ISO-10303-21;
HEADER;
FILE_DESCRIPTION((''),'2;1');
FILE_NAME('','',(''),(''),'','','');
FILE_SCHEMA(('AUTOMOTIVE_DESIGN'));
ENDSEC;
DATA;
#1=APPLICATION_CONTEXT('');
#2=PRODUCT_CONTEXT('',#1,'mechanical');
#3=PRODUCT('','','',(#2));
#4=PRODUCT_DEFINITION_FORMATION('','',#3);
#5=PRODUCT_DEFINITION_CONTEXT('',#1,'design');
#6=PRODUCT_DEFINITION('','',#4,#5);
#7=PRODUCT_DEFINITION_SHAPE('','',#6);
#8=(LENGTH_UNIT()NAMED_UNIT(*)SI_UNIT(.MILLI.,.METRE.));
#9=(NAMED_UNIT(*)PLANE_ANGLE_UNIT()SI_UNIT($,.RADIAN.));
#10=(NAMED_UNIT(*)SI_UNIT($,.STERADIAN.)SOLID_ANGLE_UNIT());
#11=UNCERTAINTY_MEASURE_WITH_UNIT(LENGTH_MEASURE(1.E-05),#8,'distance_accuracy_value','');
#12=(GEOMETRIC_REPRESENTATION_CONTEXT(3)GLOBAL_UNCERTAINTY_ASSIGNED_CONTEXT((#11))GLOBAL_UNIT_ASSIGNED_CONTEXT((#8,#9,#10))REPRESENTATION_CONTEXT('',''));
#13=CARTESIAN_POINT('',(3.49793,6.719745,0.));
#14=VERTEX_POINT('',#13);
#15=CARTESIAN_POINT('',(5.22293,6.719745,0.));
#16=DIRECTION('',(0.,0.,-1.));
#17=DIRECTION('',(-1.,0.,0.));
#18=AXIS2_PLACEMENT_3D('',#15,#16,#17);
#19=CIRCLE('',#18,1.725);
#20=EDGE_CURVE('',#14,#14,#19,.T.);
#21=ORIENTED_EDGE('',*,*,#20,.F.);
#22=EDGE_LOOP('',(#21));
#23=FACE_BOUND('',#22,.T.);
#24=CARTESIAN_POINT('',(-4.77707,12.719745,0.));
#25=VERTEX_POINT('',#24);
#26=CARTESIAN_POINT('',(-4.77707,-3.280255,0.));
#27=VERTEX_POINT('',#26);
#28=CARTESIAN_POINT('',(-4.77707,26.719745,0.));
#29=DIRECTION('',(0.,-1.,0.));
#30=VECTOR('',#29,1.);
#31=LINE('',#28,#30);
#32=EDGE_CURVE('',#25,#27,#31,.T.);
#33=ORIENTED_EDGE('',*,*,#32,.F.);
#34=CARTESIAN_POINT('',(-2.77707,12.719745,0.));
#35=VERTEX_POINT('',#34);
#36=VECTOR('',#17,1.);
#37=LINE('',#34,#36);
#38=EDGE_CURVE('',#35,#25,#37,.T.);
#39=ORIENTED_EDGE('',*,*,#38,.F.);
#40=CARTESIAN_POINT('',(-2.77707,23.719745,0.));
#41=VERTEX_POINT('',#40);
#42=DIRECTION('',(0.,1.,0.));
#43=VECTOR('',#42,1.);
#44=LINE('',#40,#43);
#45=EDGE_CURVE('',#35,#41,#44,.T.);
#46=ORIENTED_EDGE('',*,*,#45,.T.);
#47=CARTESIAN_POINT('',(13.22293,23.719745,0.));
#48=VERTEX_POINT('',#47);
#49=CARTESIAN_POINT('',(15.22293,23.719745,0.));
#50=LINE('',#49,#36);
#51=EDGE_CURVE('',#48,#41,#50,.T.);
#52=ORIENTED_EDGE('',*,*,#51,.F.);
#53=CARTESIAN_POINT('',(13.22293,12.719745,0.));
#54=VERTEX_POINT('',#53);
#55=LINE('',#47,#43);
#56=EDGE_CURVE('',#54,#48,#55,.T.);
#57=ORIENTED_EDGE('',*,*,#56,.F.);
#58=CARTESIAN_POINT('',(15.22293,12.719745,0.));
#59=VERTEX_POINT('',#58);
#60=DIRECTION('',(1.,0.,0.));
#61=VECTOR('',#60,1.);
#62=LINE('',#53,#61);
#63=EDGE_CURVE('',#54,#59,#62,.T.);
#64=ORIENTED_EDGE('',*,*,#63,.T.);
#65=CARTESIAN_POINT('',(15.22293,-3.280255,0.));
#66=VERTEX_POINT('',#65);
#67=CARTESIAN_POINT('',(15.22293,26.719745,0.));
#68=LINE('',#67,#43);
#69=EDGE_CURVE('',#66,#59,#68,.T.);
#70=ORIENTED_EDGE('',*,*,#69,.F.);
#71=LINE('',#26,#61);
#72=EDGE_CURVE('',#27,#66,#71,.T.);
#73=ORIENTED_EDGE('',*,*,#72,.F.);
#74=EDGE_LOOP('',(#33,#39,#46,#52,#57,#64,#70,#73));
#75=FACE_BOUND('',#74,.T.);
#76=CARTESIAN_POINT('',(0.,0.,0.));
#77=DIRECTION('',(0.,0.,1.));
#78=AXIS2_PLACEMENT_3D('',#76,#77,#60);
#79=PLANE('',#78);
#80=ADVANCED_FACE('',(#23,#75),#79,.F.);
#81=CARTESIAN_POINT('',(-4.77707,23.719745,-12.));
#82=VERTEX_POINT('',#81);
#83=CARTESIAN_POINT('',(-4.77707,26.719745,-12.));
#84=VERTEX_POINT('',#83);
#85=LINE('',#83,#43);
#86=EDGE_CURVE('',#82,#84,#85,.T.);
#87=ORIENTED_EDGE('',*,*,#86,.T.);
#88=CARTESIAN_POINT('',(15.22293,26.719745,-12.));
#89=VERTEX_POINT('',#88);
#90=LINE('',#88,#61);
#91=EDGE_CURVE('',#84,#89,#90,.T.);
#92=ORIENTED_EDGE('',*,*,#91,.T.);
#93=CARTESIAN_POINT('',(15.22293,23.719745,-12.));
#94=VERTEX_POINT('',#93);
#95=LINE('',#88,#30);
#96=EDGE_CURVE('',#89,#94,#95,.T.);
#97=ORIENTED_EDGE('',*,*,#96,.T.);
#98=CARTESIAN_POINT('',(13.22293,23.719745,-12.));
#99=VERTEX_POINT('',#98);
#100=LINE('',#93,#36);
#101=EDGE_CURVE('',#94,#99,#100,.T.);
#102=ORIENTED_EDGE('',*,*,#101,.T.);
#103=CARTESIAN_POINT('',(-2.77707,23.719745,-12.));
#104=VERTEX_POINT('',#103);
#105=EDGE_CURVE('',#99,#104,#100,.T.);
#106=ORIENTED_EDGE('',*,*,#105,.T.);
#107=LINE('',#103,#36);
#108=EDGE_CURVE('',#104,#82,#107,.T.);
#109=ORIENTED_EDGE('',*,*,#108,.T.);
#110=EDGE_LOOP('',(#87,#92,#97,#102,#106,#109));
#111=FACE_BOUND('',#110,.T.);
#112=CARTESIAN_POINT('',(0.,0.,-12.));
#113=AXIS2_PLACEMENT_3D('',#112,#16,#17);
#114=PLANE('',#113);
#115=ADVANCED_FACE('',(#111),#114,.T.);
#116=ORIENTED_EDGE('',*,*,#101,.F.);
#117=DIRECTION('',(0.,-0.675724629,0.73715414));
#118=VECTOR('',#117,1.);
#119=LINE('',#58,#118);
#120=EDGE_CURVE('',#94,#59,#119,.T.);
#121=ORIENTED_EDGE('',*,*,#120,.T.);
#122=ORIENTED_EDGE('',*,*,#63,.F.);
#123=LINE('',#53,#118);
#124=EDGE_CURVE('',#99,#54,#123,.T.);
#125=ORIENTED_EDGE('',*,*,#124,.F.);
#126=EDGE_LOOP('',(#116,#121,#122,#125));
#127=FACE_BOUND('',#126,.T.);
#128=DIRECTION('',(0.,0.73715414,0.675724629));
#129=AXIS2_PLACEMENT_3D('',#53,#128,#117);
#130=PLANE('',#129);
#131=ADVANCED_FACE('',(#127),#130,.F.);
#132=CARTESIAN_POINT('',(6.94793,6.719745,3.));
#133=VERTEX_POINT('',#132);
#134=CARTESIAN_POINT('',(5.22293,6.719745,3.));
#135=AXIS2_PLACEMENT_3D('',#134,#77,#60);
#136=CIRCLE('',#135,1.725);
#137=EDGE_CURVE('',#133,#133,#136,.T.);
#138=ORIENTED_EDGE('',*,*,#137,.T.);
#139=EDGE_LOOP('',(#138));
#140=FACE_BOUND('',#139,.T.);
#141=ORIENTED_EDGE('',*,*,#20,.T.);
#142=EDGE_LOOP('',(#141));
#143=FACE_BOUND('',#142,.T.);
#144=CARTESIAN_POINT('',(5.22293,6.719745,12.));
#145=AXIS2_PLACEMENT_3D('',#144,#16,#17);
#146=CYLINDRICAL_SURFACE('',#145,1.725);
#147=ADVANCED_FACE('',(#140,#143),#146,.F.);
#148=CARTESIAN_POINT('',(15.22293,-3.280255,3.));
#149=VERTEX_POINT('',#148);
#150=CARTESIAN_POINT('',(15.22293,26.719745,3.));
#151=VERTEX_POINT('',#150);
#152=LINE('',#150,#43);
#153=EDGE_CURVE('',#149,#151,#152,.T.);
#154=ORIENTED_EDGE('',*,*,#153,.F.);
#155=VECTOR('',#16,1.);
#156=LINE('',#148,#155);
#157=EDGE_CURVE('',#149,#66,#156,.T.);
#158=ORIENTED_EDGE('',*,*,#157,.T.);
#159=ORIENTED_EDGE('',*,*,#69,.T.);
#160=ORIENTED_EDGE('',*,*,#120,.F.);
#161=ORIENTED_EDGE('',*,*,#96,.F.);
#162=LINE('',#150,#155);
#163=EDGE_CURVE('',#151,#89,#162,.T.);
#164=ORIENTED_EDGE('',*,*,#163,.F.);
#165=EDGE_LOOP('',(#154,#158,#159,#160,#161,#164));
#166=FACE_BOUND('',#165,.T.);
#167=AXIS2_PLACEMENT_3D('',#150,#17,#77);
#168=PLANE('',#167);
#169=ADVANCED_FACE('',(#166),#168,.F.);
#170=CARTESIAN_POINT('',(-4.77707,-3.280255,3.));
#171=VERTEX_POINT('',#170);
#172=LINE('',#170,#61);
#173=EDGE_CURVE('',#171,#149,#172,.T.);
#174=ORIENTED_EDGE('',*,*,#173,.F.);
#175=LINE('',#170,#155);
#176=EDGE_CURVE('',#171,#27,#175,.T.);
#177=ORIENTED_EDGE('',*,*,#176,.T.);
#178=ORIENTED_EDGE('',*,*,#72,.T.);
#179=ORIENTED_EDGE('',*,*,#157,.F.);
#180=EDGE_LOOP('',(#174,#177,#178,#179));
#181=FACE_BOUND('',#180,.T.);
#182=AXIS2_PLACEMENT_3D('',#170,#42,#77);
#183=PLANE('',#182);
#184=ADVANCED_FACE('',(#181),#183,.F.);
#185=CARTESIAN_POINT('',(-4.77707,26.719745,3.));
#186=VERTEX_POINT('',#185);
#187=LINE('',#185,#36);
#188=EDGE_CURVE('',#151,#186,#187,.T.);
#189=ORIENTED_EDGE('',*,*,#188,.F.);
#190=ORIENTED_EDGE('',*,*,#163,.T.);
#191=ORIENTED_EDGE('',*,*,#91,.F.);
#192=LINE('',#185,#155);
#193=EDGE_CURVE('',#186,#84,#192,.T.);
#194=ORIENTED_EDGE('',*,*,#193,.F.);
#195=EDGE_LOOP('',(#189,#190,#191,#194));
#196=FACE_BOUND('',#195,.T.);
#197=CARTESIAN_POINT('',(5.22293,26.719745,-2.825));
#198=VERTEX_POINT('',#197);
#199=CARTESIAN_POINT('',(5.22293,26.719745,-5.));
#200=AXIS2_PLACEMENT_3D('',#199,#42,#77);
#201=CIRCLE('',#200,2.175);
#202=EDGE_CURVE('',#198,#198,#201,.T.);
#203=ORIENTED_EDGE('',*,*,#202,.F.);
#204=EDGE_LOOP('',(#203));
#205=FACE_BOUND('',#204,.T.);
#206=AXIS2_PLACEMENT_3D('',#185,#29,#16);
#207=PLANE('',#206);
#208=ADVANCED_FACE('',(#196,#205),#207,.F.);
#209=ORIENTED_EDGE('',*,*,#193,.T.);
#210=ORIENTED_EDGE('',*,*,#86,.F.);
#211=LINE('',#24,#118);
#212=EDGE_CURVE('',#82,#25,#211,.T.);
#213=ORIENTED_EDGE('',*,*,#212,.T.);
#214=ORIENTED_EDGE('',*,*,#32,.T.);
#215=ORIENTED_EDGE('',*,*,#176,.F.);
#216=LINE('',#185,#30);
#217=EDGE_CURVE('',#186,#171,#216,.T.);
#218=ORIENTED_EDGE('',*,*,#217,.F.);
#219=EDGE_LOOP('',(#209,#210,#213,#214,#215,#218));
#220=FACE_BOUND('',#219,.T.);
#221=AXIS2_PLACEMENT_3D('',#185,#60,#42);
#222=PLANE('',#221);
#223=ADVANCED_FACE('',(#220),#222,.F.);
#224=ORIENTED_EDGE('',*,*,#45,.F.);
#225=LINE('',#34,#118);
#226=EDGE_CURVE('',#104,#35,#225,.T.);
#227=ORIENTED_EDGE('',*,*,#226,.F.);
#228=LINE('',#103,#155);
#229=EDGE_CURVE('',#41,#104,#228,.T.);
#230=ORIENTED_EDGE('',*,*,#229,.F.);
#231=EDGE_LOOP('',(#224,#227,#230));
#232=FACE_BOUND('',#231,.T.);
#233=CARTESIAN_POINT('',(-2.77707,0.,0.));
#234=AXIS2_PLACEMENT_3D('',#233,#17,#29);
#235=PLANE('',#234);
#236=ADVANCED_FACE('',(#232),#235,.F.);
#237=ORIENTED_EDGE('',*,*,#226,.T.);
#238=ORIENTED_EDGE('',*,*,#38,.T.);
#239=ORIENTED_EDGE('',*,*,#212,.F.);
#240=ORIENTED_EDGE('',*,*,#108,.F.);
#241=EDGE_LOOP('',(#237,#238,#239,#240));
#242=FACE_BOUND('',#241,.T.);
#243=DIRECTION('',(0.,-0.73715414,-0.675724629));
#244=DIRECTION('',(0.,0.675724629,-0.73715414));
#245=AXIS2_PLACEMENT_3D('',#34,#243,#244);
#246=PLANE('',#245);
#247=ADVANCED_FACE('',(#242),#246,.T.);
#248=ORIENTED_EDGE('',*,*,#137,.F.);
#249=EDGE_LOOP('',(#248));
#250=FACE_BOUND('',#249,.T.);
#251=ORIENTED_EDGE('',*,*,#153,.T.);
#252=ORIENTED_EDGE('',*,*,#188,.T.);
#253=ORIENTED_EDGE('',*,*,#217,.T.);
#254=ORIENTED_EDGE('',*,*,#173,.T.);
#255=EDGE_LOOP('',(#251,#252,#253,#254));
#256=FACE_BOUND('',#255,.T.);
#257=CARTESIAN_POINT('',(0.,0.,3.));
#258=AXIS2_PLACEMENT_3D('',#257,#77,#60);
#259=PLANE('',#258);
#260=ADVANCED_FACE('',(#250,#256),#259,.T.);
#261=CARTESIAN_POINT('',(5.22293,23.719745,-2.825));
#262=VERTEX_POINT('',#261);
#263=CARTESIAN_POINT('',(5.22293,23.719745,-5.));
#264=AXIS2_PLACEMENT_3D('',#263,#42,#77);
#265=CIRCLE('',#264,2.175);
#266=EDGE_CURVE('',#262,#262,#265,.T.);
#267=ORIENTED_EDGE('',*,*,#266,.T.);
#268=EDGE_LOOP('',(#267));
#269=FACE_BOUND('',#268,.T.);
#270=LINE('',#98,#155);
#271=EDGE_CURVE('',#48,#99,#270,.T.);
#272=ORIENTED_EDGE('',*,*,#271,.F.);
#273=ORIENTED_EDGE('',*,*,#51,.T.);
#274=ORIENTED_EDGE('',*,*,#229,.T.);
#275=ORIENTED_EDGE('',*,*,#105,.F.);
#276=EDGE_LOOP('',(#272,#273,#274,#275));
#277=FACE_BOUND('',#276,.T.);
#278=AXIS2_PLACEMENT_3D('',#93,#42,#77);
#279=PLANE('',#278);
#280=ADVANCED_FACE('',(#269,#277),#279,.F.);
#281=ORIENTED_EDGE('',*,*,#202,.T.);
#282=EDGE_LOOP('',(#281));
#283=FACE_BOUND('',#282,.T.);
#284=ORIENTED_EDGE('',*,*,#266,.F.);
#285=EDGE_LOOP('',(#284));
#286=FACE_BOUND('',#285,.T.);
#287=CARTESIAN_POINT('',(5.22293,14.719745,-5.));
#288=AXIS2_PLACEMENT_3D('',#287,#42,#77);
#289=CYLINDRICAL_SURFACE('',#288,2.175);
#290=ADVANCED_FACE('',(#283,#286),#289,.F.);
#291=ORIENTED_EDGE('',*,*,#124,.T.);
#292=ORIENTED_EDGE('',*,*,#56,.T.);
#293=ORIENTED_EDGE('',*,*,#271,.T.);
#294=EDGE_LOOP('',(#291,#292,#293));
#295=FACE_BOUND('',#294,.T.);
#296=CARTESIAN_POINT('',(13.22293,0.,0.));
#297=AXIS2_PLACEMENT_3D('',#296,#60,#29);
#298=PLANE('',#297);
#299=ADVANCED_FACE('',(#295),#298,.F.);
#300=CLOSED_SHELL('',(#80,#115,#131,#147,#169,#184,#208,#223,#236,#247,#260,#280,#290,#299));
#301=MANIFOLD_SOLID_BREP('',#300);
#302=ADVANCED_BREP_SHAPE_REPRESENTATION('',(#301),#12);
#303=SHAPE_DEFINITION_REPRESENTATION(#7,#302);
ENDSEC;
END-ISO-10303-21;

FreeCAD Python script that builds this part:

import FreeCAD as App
import Part
import Sketcher


def add_polygon(sketch, points):
    """Adds a closed chain of lines whose ends are joined by coincident constraints."""
    first, n = sketch.GeometryCount, len(points)
    for a, b in zip(points, points[1:] + points[:1]):
        sketch.addGeometry(Part.LineSegment(App.Vector(*a, 0), App.Vector(*b, 0)), False)
    for i in range(n):
        sketch.addConstraint(Sketcher.Constraint("Coincident", first + i, 2, first + (i + 1) % n, 1))

doc = App.newDocument("Part")
body = doc.addObject("PartDesign::Body", "Body")

sketch1 = body.newObject("Sketcher::SketchObject", "Sketch")
sketch1.AttachmentSupport = (doc.getObject("XY_Plane"), [""])
sketch1.MapMode = "FlatFace"
add_polygon(sketch1, [(-4.77707, 26.719745), (-4.77707, -3.280255), (15.22293, -3.280255), (15.22293, 26.719745)])
sketch1.addConstraint(Sketcher.Constraint("Vertical", 0))
sketch1.addConstraint(Sketcher.Constraint("Horizontal", 1))
sketch1.addConstraint(Sketcher.Constraint("Vertical", 2))
sketch1.addConstraint(Sketcher.Constraint("Horizontal", 3))
sketch1.addConstraint(Sketcher.Constraint("DistanceX", 1, 1, 1, 2, 20.0))
sketch1.addConstraint(Sketcher.Constraint("DistanceY", 0, 2, 0, 1, 30.0))
sketch1.addConstraint(Sketcher.Constraint("DistanceX", 0, 2, -1, 1, 4.77707))
sketch1.addConstraint(Sketcher.Constraint("DistanceY", 0, 2, -1, 1, 3.280255))
pad1 = body.newObject("PartDesign::Pad", "Pad")
pad1.Profile = sketch1
pad1.Length = 3

sketch2 = body.newObject("Sketcher::SketchObject", "Sketch001")
sketch2.AttachmentSupport = (doc.getObject("XY_Plane"), [""])
sketch2.MapMode = "FlatFace"
add_polygon(sketch2, [(15.22293, 26.719745), (15.22293, 23.719745), (-4.77707, 23.719745), (-4.77707, 26.719745)])
sketch2.addConstraint(Sketcher.Constraint("Vertical", 0))
sketch2.addConstraint(Sketcher.Constraint("Horizontal", 1))
sketch2.addConstraint(Sketcher.Constraint("Vertical", 2))
sketch2.addConstraint(Sketcher.Constraint("Horizontal", 3))
sketch2.addConstraint(Sketcher.Constraint("DistanceX", 1, 2, 1, 1, 20.0))
sketch2.addConstraint(Sketcher.Constraint("DistanceY", 0, 2, 0, 1, 3.0))
sketch2.addConstraint(Sketcher.Constraint("DistanceX", -1, 1, 0, 2, 15.22293))
sketch2.addConstraint(Sketcher.Constraint("DistanceY", -1, 1, 0, 2, 23.719745))
pad2 = body.newObject("PartDesign::Pad", "Pad001")
pad2.Profile = sketch2
pad2.Length = 12
pad2.Reversed = True

sketch3 = body.newObject("Sketcher::SketchObject", "Sketch002")
sketch3.AttachmentSupport = (doc.getObject("XZ_Plane"), [""])
sketch3.MapMode = "FlatFace"
sketch3.AttachmentOffset = App.Placement(App.Vector(0, 0, -26.719745), App.Rotation())
sketch3.addGeometry(Part.Circle(App.Vector(5.22293, -5, 0), App.Vector(0, 0, 1), 2.175), False)
sketch3.addConstraint(Sketcher.Constraint("Diameter", 0, 4.35))
sketch3.addConstraint(Sketcher.Constraint("DistanceY", 0, 3, -1, 1, 5.0))
sketch3.addConstraint(Sketcher.Constraint("DistanceX", -1, 1, 0, 3, 5.22293))
pocket1 = body.newObject("PartDesign::Pocket", "Pocket")
pocket1.Profile = sketch3
pocket1.Length = 12
pocket1.Reversed = True

sketch4 = body.newObject("Sketcher::SketchObject", "Sketch003")
sketch4.AttachmentSupport = (doc.getObject("XY_Plane"), [""])
sketch4.MapMode = "FlatFace"
sketch4.addGeometry(Part.Circle(App.Vector(5.22293, 6.719745, 0), App.Vector(0, 0, 1), 1.725), False)
sketch4.addConstraint(Sketcher.Constraint("Diameter", 0, 3.45))
sketch4.addConstraint(Sketcher.Constraint("DistanceX", -1, 1, 0, 3, 5.22293))
sketch4.addConstraint(Sketcher.Constraint("DistanceY", -1, 1, 0, 3, 6.719745))
pocket2 = body.newObject("PartDesign::Pocket", "Pocket001")
pocket2.Profile = sketch4
pocket2.Length = 12
pocket2.Reversed = True

sketch5 = body.newObject("Sketcher::SketchObject", "Sketch004")
sketch5.AttachmentSupport = (doc.getObject("YZ_Plane"), [""])
sketch5.MapMode = "FlatFace"
sketch5.AttachmentOffset = App.Placement(App.Vector(0, 0, -4.77707), App.Rotation())
add_polygon(sketch5, [(23.719745, 0), (23.719745, -12), (12.719745, 0)])
sketch5.addConstraint(Sketcher.Constraint("Vertical", 0))
sketch5.addConstraint(Sketcher.Constraint("Horizontal", 2))
sketch5.addConstraint(Sketcher.Constraint("PointOnObject", 1, 2, -1))
sketch5.addConstraint(Sketcher.Constraint("DistanceX", 2, 1, 2, 2, 11.0))
sketch5.addConstraint(Sketcher.Constraint("DistanceY", 0, 2, 0, 1, 12.0))
sketch5.addConstraint(Sketcher.Constraint("DistanceX", -1, 1, 0, 2, 23.719745))
pad3 = body.newObject("PartDesign::Pad", "Pad002")
pad3.Profile = sketch5
pad3.Length = 2
doc.recompute()

datumplane = body.newObject("PartDesign::Plane", "DatumPlane")
datumplane.AttachmentSupport = (doc.getObject("YZ_Plane"), [""])
datumplane.MapMode = "FlatFace"
datumplane.AttachmentOffset = App.Placement(App.Vector(0, 0, 5.22293), App.Rotation())
mirrored = body.newObject("PartDesign::Mirrored", "Mirrored")
mirrored.Originals = [pad3]
mirrored.MirrorPlane = (datumplane, [""])
body.Tip = mirrored

doc.recompute()
